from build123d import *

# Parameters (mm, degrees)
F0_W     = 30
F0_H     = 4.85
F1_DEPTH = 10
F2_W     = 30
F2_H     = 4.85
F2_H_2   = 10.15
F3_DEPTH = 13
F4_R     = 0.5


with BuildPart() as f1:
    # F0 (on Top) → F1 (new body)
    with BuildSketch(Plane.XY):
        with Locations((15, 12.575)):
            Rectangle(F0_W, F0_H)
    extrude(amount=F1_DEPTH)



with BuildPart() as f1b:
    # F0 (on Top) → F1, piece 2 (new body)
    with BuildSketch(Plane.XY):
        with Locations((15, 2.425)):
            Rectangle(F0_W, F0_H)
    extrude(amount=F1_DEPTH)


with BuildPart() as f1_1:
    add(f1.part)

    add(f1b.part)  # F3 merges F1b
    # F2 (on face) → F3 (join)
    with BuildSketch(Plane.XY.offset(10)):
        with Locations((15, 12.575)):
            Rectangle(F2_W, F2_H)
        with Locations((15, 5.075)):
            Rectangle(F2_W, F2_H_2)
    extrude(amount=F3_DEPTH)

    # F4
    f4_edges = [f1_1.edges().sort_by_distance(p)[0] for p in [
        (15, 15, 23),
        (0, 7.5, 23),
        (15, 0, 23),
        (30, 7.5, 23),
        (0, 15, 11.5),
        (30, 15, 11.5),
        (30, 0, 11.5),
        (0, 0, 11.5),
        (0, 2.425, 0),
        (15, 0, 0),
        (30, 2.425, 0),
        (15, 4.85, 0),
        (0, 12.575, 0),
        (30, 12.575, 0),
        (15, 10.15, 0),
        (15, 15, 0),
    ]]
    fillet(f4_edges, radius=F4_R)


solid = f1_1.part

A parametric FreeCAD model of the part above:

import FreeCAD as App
import Part
import Sketcher

V = App.Vector


def edges_at(feature, points):
    """Names of the edges that pass closest to the given points."""
    edges = feature.Shape.Edges
    near = lambda p: min(range(len(edges)), key=lambda i: edges[i].distToShape(Part.Vertex(*p))[0])
    return sorted({f"Edge{near(p) + 1}" for p in points})


def add_polygon(sketch, points):
    """Adds a closed chain of lines whose ends are joined by coincident constraints."""
    first, n = sketch.GeometryCount, len(points)
    for a, b in zip(points, points[1:] + points[:1]):
        sketch.addGeometry(Part.LineSegment(App.Vector(*a, 0), App.Vector(*b, 0)), False)
    for i in range(n):
        sketch.addConstraint(Sketcher.Constraint("Coincident", first + i, 2, first + (i + 1) % n, 1))

doc = App.newDocument("Part")
body = doc.addObject("PartDesign::Body", "Body")

sketch1 = body.newObject("Sketcher::SketchObject", "Sketch")
sketch1.AttachmentSupport = (doc.getObject("XY_Plane"), [""])
sketch1.MapMode = "FlatFace"
add_polygon(sketch1, [(0, 15), (0, 10.2), (30, 10.2), (30, 15)])
sketch1.addConstraint([
    Sketcher.Constraint("Vertical", 0),
    Sketcher.Constraint("Horizontal", 1),
    Sketcher.Constraint("Vertical", 2),
    Sketcher.Constraint("Horizontal", 3),
    Sketcher.Constraint("PointOnObject", 0, 2, -2),
    Sketcher.Constraint("DistanceX", 1, 1, 1, 2, 30.0),
    Sketcher.Constraint("DistanceY", -1, 1, 2, 2, 15.0),
    Sketcher.Constraint("DistanceY", 0, 2, 0, 1, 4.85),
])
pad1 = body.newObject("PartDesign::Pad", "Pad")
pad1.Profile = sketch1
pad1.Length = 10
body2 = doc.addObject("PartDesign::Body", "Body001")

sketch2 = body2.newObject("Sketcher::SketchObject", "Sketch001")
sketch2.AttachmentSupport = (doc.getObject("XY_Plane001"), [""])
sketch2.MapMode = "FlatFace"
add_polygon(sketch2, [(0, 4.8), (0, 0), (30, 0), (30, 4.8)])
sketch2.addConstraint([
    Sketcher.Constraint("Vertical", 0),
    Sketcher.Constraint("Horizontal", 1),
    Sketcher.Constraint("Vertical", 2),
    Sketcher.Constraint("Horizontal", 3),
    Sketcher.Constraint("Coincident", 0, 2, -1, 1),
    Sketcher.Constraint("DistanceX", 1, 1, 1, 2, 30.0),
    Sketcher.Constraint("DistanceY", 0, 2, 0, 1, 4.85),
])
pad2 = body2.newObject("PartDesign::Pad", "Pad001")
pad2.Profile = sketch2
pad2.Length = 10
body.AllowCompound = True
doc.recompute()

boolean = body.newObject("PartDesign::Boolean", "Boolean")
boolean.Type = "Fuse"
boolean.addObjects([body2])

sketch3 = body.newObject("Sketcher::SketchObject", "Sketch002")
sketch3.AttachmentSupport = (doc.getObject("XY_Plane"), [""])
sketch3.MapMode = "FlatFace"
sketch3.AttachmentOffset = App.Placement(V(0, 0, 10), App.Rotation())
add_polygon(sketch3, [(0, 15), (0, 0), (30, 0), (30, 15)])
sketch3.addConstraint([
    Sketcher.Constraint("Vertical", 0),
    Sketcher.Constraint("Horizontal", 1),
    Sketcher.Constraint("Vertical", 2),
    Sketcher.Constraint("Horizontal", 3),
    Sketcher.Constraint("Coincident", 0, 2, -1, 1),
    Sketcher.Constraint("DistanceX", 1, 1, 1, 2, 30.0),
    Sketcher.Constraint("DistanceY", 0, 2, 0, 1, 15.0),
])
pad3 = body.newObject("PartDesign::Pad", "Pad002")
pad3.Profile = sketch3
pad3.Length = 13
doc.recompute()

fillet = body.newObject("PartDesign::Fillet", "Fillet")
fillet.Base = (pad3, edges_at(pad3, [
    (15, 15, 23),
    (0, 7.5, 23),
    (15, 0, 23),
    (30, 7.5, 23),
    (0, 15, 11.5),
    (30, 15, 11.5),
    (30, 0, 11.5),
    (0, 0, 11.5),
    (0, 2.425, 0),
    (15, 0, 0),
    (30, 2.425, 0),
    (15, 4.85, 0),
    (0, 12.575, 0),
    (30, 12.575, 0),
    (15, 10.15, 0),
    (15, 15, 0),
]))
fillet.Radius = 0.5

doc.recompute()
